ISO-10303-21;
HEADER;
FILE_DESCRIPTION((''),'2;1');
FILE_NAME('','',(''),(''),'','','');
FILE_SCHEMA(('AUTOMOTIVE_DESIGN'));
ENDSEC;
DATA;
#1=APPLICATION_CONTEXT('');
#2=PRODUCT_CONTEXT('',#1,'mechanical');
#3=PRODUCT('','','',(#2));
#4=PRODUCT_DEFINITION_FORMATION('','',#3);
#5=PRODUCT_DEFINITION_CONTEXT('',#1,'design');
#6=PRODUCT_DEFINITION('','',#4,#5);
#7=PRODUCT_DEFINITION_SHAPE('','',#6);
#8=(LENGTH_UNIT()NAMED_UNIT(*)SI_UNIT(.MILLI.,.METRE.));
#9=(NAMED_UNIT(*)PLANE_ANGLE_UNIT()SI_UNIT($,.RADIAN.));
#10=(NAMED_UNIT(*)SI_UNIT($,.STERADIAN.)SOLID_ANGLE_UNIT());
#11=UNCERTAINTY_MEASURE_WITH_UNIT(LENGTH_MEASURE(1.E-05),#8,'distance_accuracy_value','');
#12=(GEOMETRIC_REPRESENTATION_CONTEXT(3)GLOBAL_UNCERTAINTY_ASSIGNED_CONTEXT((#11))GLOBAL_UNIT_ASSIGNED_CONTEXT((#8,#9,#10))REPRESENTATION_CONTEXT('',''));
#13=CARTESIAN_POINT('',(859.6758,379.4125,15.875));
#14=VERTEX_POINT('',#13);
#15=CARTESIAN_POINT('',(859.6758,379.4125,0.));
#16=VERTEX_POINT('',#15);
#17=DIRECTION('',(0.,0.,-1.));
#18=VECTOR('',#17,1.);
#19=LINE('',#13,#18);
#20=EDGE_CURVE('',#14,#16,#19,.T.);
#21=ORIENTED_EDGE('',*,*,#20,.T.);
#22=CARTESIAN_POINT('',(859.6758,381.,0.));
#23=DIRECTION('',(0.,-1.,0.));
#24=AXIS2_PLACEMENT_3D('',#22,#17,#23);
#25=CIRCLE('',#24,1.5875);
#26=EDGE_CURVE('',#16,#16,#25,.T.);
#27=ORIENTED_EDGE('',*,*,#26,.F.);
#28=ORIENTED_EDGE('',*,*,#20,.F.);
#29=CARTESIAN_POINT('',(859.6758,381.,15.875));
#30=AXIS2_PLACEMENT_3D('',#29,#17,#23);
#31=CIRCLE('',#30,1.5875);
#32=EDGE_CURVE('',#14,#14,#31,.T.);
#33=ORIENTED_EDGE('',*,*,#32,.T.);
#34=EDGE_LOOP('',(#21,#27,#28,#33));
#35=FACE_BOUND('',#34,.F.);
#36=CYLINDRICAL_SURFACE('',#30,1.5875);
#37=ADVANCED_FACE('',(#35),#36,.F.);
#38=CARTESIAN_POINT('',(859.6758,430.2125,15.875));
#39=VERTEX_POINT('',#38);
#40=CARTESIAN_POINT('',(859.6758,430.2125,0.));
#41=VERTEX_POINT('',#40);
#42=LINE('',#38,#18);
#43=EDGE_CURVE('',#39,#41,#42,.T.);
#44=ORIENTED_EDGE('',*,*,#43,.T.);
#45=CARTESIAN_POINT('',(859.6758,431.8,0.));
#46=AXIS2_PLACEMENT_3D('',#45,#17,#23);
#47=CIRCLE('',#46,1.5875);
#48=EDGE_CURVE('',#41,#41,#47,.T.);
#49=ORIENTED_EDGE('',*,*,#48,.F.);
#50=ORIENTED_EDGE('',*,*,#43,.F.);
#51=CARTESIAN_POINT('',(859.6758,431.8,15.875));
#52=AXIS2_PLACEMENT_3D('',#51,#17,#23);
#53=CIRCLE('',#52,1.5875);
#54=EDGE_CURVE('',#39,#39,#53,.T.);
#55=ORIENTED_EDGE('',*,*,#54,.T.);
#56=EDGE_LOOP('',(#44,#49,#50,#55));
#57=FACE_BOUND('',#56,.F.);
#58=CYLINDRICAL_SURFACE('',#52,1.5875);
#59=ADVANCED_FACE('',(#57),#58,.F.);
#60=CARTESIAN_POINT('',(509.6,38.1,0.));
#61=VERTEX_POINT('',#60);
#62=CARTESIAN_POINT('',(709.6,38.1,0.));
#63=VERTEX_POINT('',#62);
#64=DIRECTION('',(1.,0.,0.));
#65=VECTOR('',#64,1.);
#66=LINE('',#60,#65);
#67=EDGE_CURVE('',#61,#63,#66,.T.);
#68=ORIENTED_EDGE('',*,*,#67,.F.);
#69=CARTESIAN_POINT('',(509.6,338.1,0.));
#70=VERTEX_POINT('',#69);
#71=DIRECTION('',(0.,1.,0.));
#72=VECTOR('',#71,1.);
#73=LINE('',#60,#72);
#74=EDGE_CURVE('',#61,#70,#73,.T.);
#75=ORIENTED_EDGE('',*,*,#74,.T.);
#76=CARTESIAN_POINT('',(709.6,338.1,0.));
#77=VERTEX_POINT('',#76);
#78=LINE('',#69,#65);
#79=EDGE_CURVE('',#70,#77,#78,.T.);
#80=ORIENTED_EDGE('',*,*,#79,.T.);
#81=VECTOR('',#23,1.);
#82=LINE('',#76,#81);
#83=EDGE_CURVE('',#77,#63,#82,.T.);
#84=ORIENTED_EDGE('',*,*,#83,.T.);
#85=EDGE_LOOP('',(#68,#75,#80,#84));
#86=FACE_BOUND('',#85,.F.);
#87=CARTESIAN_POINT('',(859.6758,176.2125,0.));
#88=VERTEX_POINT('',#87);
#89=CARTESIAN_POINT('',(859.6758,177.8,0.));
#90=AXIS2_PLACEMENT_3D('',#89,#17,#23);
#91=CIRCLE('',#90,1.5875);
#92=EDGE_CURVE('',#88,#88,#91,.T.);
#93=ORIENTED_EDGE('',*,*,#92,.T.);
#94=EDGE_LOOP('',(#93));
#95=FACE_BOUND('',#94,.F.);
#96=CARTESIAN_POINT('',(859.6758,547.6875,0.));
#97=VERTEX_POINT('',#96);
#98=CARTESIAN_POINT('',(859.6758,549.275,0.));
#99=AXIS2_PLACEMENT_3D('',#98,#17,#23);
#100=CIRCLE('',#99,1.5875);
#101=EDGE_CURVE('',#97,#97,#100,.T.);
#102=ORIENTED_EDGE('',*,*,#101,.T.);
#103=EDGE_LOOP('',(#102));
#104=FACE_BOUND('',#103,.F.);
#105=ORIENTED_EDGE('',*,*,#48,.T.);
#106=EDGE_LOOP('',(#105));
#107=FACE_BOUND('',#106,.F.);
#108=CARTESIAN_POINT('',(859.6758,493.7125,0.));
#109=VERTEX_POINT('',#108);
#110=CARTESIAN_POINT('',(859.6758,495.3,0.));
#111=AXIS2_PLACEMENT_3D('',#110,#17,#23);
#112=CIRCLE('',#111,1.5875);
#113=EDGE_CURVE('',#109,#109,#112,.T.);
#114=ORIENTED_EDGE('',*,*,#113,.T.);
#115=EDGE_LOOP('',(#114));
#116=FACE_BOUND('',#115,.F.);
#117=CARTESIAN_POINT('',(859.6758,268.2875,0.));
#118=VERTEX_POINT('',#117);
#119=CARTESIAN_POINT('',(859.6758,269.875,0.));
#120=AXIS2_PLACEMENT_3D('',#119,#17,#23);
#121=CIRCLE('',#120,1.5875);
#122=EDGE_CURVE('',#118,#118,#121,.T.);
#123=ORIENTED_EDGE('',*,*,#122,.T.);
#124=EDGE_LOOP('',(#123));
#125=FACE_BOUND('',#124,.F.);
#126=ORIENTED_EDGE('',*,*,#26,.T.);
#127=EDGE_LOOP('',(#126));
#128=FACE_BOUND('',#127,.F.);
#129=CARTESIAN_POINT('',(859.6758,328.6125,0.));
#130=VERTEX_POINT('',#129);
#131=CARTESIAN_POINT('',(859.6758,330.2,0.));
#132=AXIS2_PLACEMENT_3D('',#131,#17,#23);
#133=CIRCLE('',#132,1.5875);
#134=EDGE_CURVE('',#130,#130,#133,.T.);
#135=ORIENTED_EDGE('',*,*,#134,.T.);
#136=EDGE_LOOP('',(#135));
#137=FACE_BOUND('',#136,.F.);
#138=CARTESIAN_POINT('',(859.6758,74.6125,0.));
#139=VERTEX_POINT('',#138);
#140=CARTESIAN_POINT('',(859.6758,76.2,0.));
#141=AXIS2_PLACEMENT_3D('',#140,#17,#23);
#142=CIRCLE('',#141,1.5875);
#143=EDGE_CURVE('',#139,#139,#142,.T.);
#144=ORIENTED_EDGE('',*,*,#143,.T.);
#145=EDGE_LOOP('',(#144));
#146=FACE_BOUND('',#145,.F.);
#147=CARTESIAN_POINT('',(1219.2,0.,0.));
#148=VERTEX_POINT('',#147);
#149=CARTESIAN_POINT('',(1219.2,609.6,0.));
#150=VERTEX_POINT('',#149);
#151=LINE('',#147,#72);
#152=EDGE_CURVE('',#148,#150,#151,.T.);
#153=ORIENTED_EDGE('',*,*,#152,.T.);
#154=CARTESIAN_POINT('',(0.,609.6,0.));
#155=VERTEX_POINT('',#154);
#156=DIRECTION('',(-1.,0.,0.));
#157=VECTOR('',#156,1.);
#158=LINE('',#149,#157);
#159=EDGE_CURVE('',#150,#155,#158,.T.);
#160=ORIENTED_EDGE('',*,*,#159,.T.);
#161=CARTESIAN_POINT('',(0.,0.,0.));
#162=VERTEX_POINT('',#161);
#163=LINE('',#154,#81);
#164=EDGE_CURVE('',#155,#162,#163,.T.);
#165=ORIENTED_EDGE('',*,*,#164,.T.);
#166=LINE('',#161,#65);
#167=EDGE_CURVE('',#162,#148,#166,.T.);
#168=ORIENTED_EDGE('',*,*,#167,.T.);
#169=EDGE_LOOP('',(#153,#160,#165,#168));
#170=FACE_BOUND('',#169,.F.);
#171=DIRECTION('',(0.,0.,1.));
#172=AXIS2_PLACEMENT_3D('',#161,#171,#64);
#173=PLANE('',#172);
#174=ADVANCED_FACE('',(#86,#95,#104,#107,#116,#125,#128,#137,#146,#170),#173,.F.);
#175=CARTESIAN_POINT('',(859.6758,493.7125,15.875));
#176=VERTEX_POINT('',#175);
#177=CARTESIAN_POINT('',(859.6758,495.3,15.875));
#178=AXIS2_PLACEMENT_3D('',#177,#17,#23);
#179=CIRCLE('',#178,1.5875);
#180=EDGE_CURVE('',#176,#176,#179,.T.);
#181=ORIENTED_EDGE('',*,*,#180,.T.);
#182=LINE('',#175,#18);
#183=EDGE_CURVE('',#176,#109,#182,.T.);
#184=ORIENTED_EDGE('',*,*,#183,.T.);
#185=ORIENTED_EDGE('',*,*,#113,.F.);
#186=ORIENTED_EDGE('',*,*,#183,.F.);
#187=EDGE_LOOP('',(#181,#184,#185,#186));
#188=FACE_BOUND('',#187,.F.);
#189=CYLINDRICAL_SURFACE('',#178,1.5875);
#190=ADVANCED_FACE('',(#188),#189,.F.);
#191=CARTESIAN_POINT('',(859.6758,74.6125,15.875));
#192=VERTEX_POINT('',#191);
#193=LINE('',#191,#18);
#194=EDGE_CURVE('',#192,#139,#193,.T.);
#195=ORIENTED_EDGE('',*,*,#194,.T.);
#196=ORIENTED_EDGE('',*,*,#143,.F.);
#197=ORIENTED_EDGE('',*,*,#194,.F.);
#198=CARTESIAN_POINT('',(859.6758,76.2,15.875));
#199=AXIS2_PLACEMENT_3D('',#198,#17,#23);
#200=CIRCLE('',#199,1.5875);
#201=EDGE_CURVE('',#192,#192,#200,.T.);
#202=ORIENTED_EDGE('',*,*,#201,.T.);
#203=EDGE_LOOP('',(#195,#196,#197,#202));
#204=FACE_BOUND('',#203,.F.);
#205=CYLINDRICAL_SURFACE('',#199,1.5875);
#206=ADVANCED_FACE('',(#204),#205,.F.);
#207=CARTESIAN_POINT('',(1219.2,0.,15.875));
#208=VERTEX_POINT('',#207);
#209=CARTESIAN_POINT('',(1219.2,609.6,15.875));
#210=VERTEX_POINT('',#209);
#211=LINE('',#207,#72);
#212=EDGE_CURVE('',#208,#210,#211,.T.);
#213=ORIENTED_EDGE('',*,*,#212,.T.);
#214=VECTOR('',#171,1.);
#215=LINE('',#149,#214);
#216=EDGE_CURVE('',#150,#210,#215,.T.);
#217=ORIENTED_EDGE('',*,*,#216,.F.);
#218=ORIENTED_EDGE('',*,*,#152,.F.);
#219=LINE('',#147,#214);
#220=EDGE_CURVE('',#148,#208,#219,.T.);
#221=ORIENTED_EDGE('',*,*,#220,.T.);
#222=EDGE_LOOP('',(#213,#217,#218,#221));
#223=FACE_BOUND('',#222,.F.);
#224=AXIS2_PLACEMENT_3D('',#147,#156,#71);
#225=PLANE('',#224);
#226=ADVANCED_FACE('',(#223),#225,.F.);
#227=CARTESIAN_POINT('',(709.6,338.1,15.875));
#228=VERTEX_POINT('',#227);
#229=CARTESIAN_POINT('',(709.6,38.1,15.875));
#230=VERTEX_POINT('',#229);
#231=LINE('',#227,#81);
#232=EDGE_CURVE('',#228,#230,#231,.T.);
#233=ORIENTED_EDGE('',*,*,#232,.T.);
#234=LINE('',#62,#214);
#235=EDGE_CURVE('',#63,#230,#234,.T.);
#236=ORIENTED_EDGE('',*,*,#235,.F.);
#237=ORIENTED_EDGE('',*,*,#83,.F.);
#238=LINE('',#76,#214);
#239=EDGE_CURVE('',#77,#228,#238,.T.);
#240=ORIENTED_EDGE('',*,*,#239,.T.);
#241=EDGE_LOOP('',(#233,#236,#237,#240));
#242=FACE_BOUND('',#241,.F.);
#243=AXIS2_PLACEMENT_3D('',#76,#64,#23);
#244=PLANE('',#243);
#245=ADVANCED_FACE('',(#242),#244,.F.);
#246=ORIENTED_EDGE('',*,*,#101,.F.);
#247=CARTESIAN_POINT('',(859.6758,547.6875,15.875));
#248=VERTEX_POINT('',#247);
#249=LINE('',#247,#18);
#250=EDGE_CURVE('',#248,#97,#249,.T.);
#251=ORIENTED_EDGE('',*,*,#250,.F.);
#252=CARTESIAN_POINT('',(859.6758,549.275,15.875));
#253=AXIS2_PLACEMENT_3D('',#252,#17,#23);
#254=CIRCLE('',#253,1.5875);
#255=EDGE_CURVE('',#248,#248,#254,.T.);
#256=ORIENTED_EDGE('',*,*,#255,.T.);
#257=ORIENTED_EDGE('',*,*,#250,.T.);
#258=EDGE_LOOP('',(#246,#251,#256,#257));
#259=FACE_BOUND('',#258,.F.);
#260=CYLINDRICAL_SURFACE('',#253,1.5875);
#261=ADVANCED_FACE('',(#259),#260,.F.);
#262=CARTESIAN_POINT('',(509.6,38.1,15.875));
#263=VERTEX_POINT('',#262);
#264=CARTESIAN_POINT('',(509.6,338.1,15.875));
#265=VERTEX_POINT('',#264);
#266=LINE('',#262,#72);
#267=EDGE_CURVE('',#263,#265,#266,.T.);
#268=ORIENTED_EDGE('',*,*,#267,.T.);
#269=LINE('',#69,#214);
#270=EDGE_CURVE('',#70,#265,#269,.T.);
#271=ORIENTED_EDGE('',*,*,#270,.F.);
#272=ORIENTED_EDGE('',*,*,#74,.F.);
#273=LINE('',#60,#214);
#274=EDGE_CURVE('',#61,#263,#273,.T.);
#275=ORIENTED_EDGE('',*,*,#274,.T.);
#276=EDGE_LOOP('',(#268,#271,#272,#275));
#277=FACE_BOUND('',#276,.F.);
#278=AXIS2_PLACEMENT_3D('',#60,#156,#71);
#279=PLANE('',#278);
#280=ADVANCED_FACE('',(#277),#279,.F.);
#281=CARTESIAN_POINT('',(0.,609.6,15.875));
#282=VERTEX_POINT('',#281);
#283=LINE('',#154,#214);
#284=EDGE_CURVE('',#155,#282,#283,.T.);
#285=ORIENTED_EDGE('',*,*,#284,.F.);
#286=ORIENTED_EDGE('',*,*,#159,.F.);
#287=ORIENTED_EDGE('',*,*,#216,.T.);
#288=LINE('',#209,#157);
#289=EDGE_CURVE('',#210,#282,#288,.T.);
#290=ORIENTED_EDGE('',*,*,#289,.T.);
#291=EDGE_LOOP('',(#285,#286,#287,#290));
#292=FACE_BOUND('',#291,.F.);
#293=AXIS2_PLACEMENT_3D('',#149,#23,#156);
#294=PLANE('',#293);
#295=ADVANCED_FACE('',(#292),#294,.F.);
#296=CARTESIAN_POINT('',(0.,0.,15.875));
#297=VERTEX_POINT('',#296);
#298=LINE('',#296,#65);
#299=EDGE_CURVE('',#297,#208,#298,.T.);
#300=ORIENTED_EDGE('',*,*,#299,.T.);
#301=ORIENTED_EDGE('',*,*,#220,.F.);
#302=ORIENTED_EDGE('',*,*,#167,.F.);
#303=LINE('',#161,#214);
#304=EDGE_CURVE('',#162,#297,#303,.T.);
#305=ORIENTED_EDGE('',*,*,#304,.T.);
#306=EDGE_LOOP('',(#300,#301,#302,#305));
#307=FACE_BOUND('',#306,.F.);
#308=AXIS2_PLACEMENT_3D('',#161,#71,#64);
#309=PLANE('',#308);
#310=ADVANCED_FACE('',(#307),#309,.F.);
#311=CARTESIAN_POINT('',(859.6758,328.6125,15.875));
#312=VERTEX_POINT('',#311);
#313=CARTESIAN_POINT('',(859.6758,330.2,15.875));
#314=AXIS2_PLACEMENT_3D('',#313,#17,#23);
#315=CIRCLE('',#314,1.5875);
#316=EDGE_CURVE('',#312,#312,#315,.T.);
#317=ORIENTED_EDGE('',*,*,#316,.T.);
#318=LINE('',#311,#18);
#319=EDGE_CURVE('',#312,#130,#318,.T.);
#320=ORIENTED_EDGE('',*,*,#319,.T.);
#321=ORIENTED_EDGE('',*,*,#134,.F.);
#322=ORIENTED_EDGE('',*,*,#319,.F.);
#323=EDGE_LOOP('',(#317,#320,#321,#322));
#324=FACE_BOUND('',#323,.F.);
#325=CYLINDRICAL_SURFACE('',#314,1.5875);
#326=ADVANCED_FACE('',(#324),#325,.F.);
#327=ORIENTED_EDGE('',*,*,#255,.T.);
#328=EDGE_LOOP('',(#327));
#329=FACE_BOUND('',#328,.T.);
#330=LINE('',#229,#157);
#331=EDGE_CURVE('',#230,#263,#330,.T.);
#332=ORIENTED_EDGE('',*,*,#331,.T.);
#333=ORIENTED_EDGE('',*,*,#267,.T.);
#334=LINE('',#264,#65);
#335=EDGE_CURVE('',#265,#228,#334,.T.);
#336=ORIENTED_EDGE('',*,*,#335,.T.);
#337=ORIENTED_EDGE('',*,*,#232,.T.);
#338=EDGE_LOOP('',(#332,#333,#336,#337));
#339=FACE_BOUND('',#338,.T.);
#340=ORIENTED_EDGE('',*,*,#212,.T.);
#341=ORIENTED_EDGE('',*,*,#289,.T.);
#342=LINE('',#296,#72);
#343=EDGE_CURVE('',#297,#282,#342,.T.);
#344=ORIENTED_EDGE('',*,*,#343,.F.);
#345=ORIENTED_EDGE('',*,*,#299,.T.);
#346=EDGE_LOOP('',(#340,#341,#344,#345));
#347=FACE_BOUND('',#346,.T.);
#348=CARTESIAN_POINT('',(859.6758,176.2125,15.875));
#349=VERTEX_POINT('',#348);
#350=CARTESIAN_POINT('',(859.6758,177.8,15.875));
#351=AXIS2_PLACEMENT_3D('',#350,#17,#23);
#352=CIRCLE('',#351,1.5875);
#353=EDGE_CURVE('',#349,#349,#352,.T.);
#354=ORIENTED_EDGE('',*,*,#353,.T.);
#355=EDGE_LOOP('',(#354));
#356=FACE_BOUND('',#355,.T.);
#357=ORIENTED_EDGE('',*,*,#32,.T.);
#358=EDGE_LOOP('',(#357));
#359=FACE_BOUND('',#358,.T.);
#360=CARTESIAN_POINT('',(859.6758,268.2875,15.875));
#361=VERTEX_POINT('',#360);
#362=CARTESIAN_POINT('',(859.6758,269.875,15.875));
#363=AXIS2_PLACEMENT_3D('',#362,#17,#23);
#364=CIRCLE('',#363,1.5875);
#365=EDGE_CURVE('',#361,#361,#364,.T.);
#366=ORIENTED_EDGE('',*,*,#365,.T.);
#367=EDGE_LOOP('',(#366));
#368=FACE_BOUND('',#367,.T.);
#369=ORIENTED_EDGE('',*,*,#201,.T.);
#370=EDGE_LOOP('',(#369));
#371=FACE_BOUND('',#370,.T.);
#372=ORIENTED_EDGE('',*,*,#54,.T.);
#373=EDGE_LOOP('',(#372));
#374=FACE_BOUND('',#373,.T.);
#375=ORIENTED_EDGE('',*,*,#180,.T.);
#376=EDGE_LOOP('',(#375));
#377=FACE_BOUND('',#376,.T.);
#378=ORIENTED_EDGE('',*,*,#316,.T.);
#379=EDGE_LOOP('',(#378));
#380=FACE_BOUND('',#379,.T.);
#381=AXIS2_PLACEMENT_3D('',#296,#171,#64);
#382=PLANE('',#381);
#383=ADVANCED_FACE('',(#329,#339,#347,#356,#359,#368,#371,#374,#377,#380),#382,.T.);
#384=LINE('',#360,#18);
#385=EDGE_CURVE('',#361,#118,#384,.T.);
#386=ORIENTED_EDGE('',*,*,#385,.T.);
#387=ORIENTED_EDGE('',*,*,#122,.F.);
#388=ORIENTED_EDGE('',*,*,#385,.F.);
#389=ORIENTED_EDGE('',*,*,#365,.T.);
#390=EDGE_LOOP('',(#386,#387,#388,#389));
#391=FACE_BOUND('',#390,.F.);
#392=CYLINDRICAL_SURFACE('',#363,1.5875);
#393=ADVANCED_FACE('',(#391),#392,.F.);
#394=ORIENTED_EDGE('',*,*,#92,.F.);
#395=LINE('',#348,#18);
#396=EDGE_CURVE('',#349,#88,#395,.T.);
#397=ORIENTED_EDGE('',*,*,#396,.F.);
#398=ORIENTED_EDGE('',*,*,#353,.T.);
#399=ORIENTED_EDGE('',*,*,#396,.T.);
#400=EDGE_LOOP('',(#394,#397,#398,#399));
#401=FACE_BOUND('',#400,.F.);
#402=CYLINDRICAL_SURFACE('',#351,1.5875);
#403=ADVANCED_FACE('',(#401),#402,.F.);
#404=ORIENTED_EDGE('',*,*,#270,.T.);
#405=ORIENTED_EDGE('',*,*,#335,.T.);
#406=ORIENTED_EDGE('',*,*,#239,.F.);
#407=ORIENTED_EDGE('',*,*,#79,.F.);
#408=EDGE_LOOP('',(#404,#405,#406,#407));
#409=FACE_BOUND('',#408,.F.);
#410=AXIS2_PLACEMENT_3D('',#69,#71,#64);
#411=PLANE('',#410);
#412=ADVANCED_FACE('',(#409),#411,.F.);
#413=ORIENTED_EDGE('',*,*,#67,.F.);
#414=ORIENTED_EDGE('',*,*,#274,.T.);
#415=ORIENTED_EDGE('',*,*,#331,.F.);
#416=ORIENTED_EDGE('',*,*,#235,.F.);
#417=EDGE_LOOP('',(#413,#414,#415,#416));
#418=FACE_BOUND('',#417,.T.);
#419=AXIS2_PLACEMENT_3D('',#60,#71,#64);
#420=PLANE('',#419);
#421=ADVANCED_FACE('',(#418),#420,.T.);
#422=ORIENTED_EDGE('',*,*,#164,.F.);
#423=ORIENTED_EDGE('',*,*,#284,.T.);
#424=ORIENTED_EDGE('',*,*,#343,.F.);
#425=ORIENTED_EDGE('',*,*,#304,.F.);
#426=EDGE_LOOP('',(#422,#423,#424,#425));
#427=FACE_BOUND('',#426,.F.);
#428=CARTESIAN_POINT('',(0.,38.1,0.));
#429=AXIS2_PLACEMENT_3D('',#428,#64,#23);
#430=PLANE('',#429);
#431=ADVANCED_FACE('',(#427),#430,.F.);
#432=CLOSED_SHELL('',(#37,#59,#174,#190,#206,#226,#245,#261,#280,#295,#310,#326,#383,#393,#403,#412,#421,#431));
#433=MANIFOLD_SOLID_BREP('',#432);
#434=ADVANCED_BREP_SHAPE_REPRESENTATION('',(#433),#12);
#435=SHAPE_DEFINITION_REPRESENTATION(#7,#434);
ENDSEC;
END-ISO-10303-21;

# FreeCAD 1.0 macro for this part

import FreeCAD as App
import Part
import Sketcher
Q = App.Units.Quantity

doc = App.newDocument("Part")
body = doc.addObject("PartDesign::Body", "Body")

# Sketch on XY plane
sketch1 = doc.addObject("Sketcher::SketchObject", "Sketch")
body.addObject(sketch1)
sketch1.AttachmentSupport = (doc.XY_Plane, [""])
sketch1.MapMode = "FlatFace"
sketch1.addGeometry([
    Part.LineSegment(App.Vector(0, 610, 0), App.Vector(0, 0, 0)),  # 0
    Part.LineSegment(App.Vector(0, 0, 0), App.Vector(1219, 0, 0)),  # 1
    Part.LineSegment(App.Vector(1219, 0, 0), App.Vector(1219, 610, 0)),  # 2
    Part.LineSegment(App.Vector(1219, 610, 0), App.Vector(0, 610, 0)),  # 3
    Part.LineSegment(App.Vector(710, 38, 0), App.Vector(510, 38, 0)),  # 4
    Part.LineSegment(App.Vector(510, 38, 0), App.Vector(510, 338, 0)),  # 5
    Part.LineSegment(App.Vector(510, 338, 0), App.Vector(710, 338, 0)),  # 6
    Part.LineSegment(App.Vector(710, 338, 0), App.Vector(710, 38, 0)),  # 7
], False)
sketch1.addConstraint([
    Sketcher.Constraint("Coincident", 0, 2, 1, 1),
    Sketcher.Constraint("Coincident", 1, 2, 2, 1),
    Sketcher.Constraint("Coincident", 2, 2, 3, 1),
    Sketcher.Constraint("Coincident", 3, 2, 0, 1),
    Sketcher.Constraint("Coincident", 4, 2, 5, 1),
    Sketcher.Constraint("Coincident", 5, 2, 6, 1),
    Sketcher.Constraint("Coincident", 6, 2, 7, 1),
    Sketcher.Constraint("Coincident", 7, 2, 4, 1),
    Sketcher.Constraint("Vertical", 0),
    Sketcher.Constraint("Horizontal", 1),
    Sketcher.Constraint("Vertical", 2),
    Sketcher.Constraint("Horizontal", 3),
    Sketcher.Constraint("Horizontal", 4),
    Sketcher.Constraint("Vertical", 5),
    Sketcher.Constraint("Horizontal", 6),
    Sketcher.Constraint("Vertical", 7),
    Sketcher.Constraint("Coincident", 0, 2, -1, 1),
    Sketcher.Constraint("DistanceX", 1, 1, 1, 2, Q("48 in")),
    Sketcher.Constraint("DistanceY", 0, 2, 0, 1, Q("24 in")),
    Sketcher.Constraint("DistanceY", -1, 1, 4, 2, Q("1.5 in")),
    Sketcher.Constraint("DistanceX", 4, 2, 4, 1, Q("200 mm")),
    Sketcher.Constraint("DistanceY", 5, 1, 5, 2, Q("300 mm")),
    Sketcher.Constraint("DistanceX", -1, 1, 4, 2, Q("20.063 in")),
])
pad1 = doc.addObject("PartDesign::Pad", "Pad")
body.addObject(pad1)
pad1.Profile = sketch1
pad1.Length = Q("0.625 in")

# Sketch on XY plane
sketch2 = doc.addObject("Sketcher::SketchObject", "Sketch001")
body.addObject(sketch2)
sketch2.AttachmentSupport = (doc.XY_Plane, [""])
sketch2.MapMode = "FlatFace"
sketch2.AttachmentOffset = App.Placement(App.Vector(0, 0, 0.625 * 25.4), App.Rotation())
sketch2.addGeometry([
    Part.Circle(App.Vector(859.7, 549.3, 0), App.Vector(0, 0, 1), 1.6),  # 0
    Part.Circle(App.Vector(859.7, 495.3, 0), App.Vector(0, 0, 1), 1.6),  # 1
    Part.Circle(App.Vector(859.7, 431.8, 0), App.Vector(0, 0, 1), 1.6),  # 2
    Part.Circle(App.Vector(859.7, 330.2, 0), App.Vector(0, 0, 1), 1.6),  # 3
    Part.Circle(App.Vector(859.7, 381, 0), App.Vector(0, 0, 1), 1.6),  # 4
    Part.Circle(App.Vector(859.7, 269.9, 0), App.Vector(0, 0, 1), 1.6),  # 5
    Part.Circle(App.Vector(859.7, 177.8, 0), App.Vector(0, 0, 1), 1.6),  # 6
    Part.Circle(App.Vector(859.7, 76.2, 0), App.Vector(0, 0, 1), 1.6),  # 7
], False)
sketch2.addConstraint([
    Sketcher.Constraint("Equal", 0, 1),
    Sketcher.Constraint("Equal", 1, 2),
    Sketcher.Constraint("Equal", 2, 3),
    Sketcher.Constraint("Equal", 3, 4),
    Sketcher.Constraint("Equal", 4, 5),
    Sketcher.Constraint("Equal", 5, 6),
    Sketcher.Constraint("Equal", 6, 7),
    Sketcher.Constraint("Vertical", 0, 3, 1, 3),
    Sketcher.Constraint("Vertical", 1, 3, 2, 3),
    Sketcher.Constraint("Vertical", 2, 3, 3, 3),
    Sketcher.Constraint("Vertical", 3, 3, 4, 3),
    Sketcher.Constraint("Vertical", 4, 3, 5, 3),
    Sketcher.Constraint("Vertical", 5, 3, 6, 3),
    Sketcher.Constraint("Vertical", 6, 3, 7, 3),
    Sketcher.Constraint("Diameter", 0, Q("0.125 in")),
    Sketcher.Constraint("DistanceY", -1, 1, 2, 3, Q("17 in")),
    Sketcher.Constraint("DistanceY", -1, 1, 3, 3, Q("13 in")),
    Sketcher.Constraint("DistanceY", -1, 1, 4, 3, Q("15 in")),
    Sketcher.Constraint("DistanceY", -1, 1, 6, 3, Q("7 in")),
    Sketcher.Constraint("DistanceY", -1, 1, 7, 3, Q("3 in")),
    Sketcher.Constraint("DistanceY", 5, 3, 0, 3, Q("11 in")),
    Sketcher.Constraint("DistanceY", -1, 1, 1, 3, Q("19.5 in")),
    Sketcher.Constraint("DistanceY", -1, 1, 0, 3, Q("21.625 in")),
    Sketcher.Constraint("DistanceX", -1, 1, 0, 3, Q("33.8455 in")),
])
doc.recompute()
hole = doc.addObject("PartDesign::Hole", "Hole")
body.addObject(hole)
hole.Profile = sketch2
hole.ThreadType = "None"
hole.Diameter = Q("0.125 in")
hole.DepthType = "ThroughAll"

doc.recompute()
